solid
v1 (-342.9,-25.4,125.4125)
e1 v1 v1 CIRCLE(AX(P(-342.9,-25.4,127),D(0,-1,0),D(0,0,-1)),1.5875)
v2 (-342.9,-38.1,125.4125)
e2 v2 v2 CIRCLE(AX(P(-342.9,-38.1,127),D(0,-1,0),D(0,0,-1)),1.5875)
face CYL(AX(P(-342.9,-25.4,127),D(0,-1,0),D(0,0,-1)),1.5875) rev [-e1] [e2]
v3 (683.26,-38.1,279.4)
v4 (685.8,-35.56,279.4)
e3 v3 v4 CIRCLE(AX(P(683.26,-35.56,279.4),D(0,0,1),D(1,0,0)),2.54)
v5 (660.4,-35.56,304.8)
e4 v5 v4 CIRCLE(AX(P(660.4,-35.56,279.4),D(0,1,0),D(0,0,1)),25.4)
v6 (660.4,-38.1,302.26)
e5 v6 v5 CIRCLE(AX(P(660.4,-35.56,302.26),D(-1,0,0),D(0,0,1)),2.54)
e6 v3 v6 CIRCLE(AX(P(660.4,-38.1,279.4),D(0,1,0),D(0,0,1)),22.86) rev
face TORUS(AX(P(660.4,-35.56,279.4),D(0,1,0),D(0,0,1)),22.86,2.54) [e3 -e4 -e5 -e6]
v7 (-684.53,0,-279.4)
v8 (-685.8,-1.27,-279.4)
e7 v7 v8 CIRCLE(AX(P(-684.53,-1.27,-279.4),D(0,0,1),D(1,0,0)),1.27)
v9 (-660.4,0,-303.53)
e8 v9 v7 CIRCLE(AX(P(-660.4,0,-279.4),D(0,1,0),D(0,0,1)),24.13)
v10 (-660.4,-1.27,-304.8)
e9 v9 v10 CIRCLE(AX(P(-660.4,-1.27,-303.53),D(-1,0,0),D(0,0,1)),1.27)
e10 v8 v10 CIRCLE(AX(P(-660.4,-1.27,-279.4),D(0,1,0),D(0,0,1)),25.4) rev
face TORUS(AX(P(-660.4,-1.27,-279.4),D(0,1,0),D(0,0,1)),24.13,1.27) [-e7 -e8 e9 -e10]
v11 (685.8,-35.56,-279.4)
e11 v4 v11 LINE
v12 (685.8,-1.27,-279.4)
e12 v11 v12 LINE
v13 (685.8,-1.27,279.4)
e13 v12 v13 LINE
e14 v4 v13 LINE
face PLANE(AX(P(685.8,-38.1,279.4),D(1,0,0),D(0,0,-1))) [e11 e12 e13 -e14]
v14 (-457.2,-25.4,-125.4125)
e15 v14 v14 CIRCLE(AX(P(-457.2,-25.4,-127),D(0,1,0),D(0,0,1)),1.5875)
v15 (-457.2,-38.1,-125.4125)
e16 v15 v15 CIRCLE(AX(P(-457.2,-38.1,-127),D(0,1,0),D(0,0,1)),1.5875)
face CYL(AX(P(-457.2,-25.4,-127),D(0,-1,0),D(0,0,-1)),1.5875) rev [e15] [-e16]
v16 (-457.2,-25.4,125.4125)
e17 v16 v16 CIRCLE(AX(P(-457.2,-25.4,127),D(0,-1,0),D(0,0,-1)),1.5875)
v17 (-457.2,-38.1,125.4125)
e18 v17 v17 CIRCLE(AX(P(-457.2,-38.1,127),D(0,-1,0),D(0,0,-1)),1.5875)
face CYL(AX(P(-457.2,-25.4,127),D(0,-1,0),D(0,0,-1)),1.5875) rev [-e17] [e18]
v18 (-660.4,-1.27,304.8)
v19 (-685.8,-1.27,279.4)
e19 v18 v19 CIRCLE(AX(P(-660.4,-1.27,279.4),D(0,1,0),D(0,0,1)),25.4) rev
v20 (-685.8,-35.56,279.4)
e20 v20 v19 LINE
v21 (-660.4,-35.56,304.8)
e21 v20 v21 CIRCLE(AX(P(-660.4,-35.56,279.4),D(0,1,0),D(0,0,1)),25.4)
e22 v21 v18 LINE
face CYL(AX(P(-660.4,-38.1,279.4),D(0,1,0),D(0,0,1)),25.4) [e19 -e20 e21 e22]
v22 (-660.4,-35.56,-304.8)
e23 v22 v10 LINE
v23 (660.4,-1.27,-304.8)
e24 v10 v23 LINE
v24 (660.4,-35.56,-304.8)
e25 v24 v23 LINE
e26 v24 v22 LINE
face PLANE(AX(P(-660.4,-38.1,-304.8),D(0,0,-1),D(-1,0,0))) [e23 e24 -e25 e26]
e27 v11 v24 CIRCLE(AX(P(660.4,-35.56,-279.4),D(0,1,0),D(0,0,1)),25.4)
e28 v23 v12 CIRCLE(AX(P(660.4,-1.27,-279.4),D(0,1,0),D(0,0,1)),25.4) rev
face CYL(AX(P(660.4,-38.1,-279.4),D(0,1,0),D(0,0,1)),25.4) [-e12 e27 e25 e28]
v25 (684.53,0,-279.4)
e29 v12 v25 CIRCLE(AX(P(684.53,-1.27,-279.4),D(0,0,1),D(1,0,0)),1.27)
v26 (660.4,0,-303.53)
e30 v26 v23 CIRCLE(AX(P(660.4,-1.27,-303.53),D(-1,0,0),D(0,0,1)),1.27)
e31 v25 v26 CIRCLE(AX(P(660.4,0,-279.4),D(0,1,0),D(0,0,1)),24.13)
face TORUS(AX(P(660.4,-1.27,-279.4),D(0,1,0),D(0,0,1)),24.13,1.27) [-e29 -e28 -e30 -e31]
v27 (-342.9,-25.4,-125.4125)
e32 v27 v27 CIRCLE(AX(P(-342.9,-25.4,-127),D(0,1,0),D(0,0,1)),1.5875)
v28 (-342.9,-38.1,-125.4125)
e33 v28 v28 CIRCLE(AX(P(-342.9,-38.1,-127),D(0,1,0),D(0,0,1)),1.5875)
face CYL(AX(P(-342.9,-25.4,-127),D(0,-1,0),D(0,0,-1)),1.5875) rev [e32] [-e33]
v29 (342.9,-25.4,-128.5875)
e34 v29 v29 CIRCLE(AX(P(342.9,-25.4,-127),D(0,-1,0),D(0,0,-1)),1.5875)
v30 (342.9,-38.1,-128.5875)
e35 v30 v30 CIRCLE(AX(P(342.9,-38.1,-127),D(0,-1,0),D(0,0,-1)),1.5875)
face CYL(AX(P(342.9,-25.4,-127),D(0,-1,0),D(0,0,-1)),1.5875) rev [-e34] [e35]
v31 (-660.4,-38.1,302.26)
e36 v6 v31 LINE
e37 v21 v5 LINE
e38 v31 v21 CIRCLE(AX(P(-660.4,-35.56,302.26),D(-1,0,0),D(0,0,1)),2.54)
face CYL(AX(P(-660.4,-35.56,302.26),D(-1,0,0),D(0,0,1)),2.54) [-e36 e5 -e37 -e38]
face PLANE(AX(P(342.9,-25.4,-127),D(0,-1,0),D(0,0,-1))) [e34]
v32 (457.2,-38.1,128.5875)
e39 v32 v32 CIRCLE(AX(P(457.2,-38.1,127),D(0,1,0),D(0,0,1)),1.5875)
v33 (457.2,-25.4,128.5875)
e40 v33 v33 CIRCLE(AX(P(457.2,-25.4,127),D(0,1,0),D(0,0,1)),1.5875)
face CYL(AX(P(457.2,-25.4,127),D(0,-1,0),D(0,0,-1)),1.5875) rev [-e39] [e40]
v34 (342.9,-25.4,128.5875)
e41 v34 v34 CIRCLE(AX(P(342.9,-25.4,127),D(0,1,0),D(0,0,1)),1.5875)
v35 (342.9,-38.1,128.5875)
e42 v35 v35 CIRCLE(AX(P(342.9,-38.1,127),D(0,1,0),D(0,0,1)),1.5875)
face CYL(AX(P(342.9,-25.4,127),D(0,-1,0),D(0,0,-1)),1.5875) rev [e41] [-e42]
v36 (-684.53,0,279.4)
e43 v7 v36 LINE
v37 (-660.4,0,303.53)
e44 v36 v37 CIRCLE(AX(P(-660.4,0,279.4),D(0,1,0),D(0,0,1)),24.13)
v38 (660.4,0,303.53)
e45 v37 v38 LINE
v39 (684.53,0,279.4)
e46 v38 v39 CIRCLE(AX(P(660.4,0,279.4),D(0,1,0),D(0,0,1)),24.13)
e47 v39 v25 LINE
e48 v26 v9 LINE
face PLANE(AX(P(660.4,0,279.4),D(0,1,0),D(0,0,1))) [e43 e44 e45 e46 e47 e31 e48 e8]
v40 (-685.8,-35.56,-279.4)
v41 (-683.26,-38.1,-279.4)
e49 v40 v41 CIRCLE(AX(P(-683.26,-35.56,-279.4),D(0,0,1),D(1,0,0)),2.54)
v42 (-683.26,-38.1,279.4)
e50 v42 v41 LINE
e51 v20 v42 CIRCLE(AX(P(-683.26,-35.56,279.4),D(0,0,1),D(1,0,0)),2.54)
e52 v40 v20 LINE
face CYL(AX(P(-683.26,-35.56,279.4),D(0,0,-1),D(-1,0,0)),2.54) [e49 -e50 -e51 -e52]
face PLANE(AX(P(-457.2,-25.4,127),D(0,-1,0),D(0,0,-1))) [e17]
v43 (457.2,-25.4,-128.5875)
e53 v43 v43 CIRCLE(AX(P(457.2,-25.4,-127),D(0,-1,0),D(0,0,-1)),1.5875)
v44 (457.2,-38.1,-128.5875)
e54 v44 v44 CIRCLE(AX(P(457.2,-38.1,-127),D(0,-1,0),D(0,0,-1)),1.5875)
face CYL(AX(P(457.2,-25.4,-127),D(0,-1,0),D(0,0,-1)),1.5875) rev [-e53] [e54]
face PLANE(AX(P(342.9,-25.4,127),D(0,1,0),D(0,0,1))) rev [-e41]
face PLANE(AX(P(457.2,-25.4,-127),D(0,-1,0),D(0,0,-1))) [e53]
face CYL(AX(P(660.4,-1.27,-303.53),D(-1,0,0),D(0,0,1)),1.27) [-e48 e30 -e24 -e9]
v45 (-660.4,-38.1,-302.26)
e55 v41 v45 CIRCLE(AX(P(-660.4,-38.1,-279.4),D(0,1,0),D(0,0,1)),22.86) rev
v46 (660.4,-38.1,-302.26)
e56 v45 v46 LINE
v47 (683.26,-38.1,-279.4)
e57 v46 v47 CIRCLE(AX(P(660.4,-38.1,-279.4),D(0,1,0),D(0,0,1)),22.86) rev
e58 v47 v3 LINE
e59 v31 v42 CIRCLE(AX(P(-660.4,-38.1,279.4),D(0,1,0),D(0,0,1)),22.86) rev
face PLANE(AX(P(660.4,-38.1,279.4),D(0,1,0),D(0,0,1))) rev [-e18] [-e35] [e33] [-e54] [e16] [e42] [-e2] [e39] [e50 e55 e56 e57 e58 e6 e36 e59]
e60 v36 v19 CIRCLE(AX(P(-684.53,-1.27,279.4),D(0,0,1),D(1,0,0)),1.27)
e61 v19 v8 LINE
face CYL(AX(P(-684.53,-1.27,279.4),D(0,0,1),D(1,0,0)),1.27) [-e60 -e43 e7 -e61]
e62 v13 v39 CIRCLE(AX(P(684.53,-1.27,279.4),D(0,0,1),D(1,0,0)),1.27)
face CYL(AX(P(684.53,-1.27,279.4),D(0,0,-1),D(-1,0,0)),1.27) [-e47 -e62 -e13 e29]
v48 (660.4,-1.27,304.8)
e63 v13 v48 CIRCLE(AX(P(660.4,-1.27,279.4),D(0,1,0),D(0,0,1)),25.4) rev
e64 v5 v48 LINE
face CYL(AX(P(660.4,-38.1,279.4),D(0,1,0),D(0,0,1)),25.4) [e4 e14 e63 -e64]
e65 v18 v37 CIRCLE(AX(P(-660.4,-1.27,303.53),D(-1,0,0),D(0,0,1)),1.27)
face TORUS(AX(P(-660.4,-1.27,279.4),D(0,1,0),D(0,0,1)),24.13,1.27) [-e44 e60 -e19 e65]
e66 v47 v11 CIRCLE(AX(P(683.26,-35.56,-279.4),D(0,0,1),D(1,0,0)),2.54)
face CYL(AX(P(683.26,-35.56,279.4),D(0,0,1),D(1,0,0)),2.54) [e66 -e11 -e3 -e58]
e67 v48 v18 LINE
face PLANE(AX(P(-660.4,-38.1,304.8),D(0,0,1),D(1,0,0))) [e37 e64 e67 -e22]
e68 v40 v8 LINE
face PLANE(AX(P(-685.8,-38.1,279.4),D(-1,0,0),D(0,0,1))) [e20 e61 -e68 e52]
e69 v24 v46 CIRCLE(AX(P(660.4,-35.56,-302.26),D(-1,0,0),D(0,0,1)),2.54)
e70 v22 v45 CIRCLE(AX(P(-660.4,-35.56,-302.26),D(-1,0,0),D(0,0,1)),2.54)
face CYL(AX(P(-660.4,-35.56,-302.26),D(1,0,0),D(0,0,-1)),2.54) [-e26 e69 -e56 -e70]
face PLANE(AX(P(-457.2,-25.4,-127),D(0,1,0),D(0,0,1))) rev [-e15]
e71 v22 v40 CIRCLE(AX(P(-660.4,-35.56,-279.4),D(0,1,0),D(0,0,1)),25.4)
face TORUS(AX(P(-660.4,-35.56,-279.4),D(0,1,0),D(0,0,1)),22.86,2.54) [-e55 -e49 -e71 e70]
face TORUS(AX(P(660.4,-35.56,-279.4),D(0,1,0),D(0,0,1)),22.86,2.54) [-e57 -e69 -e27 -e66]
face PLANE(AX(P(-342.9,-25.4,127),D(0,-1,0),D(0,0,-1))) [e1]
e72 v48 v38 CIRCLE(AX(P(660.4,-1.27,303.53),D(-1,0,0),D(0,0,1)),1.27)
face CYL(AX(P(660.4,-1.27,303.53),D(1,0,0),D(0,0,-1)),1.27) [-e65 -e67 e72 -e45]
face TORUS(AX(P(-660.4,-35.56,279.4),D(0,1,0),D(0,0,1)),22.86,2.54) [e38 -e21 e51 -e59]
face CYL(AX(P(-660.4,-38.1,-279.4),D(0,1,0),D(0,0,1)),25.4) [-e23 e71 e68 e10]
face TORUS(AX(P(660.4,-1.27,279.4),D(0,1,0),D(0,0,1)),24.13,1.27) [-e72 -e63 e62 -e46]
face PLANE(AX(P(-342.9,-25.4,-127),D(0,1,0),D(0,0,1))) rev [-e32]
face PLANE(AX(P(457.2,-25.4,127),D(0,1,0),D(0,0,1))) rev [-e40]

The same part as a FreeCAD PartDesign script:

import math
import FreeCAD as App
import Part
import Sketcher
from FreeCAD import Vector
Q = App.Units.Quantity


def edges_at(feature, points):
    """Names of the edges that pass closest to the given points."""
    edges = feature.Shape.Edges
    near = lambda p: min(range(len(edges)), key=lambda i: edges[i].distToShape(Part.Vertex(*p))[0])
    return sorted({f"Edge{near(p) + 1}" for p in points})

doc = App.newDocument("Part")
body = doc.addObject("PartDesign::Body", "Body")

sketch1 = body.newObject("Sketcher::SketchObject", "Sketch")
sketch1.AttachmentSupport = (doc.getObject("XZ_Plane"), [""])
sketch1.MapMode = "FlatFace"
sketch1.addGeometry([
    Part.LineSegment(Vector(-660, 305, 0), Vector(660, 305, 0)),
    Part.ArcOfCircle(Part.Circle(Vector(660, 279, 0), Vector(0, 0, 1), 25), math.radians(0), math.radians(90)),
    Part.LineSegment(Vector(686, 279, 0), Vector(686, -279, 0)),
    Part.ArcOfCircle(Part.Circle(Vector(660, -279, 0), Vector(0, 0, 1), 25), math.radians(-90), math.radians(0)),
    Part.LineSegment(Vector(660, -305, 0), Vector(-660, -305, 0)),
    Part.ArcOfCircle(Part.Circle(Vector(-660, -279, 0), Vector(0, 0, 1), 25), math.radians(180), math.radians(270)),
    Part.LineSegment(Vector(-686, -279, 0), Vector(-686, 279, 0)),
    Part.ArcOfCircle(Part.Circle(Vector(-660, 279, 0), Vector(0, 0, 1), 25), math.radians(90), math.radians(180)),
], False)
sketch1.addConstraint([
    Sketcher.Constraint("Tangent", 0, 2, 1, 2),
    Sketcher.Constraint("Tangent", 1, 1, 2, 1),
    Sketcher.Constraint("Tangent", 2, 2, 3, 2),
    Sketcher.Constraint("Tangent", 3, 1, 4, 1),
    Sketcher.Constraint("Tangent", 4, 2, 5, 2),
    Sketcher.Constraint("Tangent", 5, 1, 6, 1),
    Sketcher.Constraint("Tangent", 6, 2, 7, 2),
    Sketcher.Constraint("Tangent", 7, 1, 0, 1),
    Sketcher.Constraint("Horizontal", 0),
    Sketcher.Constraint("Vertical", 2),
    Sketcher.Constraint("Horizontal", 4),
    Sketcher.Constraint("Vertical", 6),
    Sketcher.Constraint("Equal", 1, 3),
    Sketcher.Constraint("Equal", 3, 5),
    Sketcher.Constraint("Equal", 5, 7),
    Sketcher.Constraint("Symmetric", 1, 3, 5, 3, -1, 1),
    Sketcher.Constraint("Radius", 1, Q("1 in")),
    Sketcher.Constraint("DistanceX", 0, 1, 0, 2, Q("52 in")),
    Sketcher.Constraint("DistanceY", 2, 2, 2, 1, Q("22 in")),
])
pad1 = body.newObject("PartDesign::Pad", "Pad")
pad1.Profile = sketch1
pad1.Length = Q("1.5 in")
doc.recompute()

fillet = body.newObject("PartDesign::Fillet", "Fillet")
fillet.Base = (pad1, edges_at(pad1, [
    (678.361, -38.1, -297.361),
    (0, -38.1, -304.8),
    (-678.361, -38.1, -297.361),
    (-685.8, -38.1, 0),
    (-678.361, -38.1, 297.361),
    (0, -38.1, 304.8),
    (678.361, -38.1, 297.361),
    (685.8, -38.1, 0),
]))
fillet.Radius = Q("0.1 in")
doc.recompute()

fillet2 = body.newObject("PartDesign::Fillet", "Fillet001")
fillet2.Base = (fillet, edges_at(fillet, [
    (0, 0, -304.8),
    (678.361, 0, -297.361),
    (685.8, 0, 0),
    (678.361, 0, 297.361),
    (0, 0, 304.8),
    (-678.361, 0, 297.361),
    (-685.8, 0, 0),
    (-678.361, 0, -297.361),
]))
fillet2.Radius = Q("0.05 in")

sketch2 = body.newObject("Sketcher::SketchObject", "Sketch001")
sketch2.AttachmentSupport = (doc.getObject("XZ_Plane"), [""])
sketch2.MapMode = "FlatFace"
sketch2.AttachmentOffset = App.Placement(Vector(0, 0, 1.5 * 25.4), App.Rotation())
sketch2.addGeometry([
    Part.Circle(Vector(-457.2, 127, 0), Vector(0, 0, 1), 1.6),
    Part.Circle(Vector(-342.9, 127, 0), Vector(0, 0, 1), 1.6),
    Part.Circle(Vector(342.9, 127, 0), Vector(0, 0, 1), 1.6),
    Part.Circle(Vector(457.2, 127, 0), Vector(0, 0, 1), 1.6),
    Part.Circle(Vector(-342.9, -127, 0), Vector(0, 0, 1), 1.6),
    Part.Circle(Vector(-457.2, -127, 0), Vector(0, 0, 1), 1.6),
    Part.Circle(Vector(457.2, -127, 0), Vector(0, 0, 1), 1.6),
    Part.Circle(Vector(342.9, -127, 0), Vector(0, 0, 1), 1.6),
], False)
sketch2.addConstraint([
    Sketcher.Constraint("Equal", 0, 1),
    Sketcher.Constraint("Equal", 1, 2),
    Sketcher.Constraint("Equal", 2, 3),
    Sketcher.Constraint("Equal", 3, 4),
    Sketcher.Constraint("Equal", 4, 5),
    Sketcher.Constraint("Equal", 5, 6),
    Sketcher.Constraint("Equal", 6, 7),
    Sketcher.Constraint("Symmetric", 2, 3, 4, 3, -1, 1),
    Sketcher.Constraint("Symmetric", 3, 3, 5, 3, -1, 1),
    Sketcher.Constraint("Symmetric", 0, 3, 6, 3, -1, 1),
    Sketcher.Constraint("Symmetric", 1, 3, 7, 3, -1, 1),
    Sketcher.Constraint("Symmetric", 1, 3, 2, 3, -2),
    Sketcher.Constraint("Symmetric", 0, 3, 3, 3, -2),
    Sketcher.Constraint("Horizontal", 0, 3, 1, 3),
    Sketcher.Constraint("Diameter", 0, Q("0.125 in")),
    Sketcher.Constraint("DistanceX", 0, 3, -1, 1, Q("18 in")),
    Sketcher.Constraint("DistanceY", -1, 1, 0, 3, Q("5 in")),
    Sketcher.Constraint("DistanceX", 1, 3, 2, 3, Q("27 in")),
])
pocket1 = body.newObject("PartDesign::Pocket", "Pocket")
pocket1.Profile = sketch2
pocket1.Length = Q("0.5 in")

doc.recompute()
